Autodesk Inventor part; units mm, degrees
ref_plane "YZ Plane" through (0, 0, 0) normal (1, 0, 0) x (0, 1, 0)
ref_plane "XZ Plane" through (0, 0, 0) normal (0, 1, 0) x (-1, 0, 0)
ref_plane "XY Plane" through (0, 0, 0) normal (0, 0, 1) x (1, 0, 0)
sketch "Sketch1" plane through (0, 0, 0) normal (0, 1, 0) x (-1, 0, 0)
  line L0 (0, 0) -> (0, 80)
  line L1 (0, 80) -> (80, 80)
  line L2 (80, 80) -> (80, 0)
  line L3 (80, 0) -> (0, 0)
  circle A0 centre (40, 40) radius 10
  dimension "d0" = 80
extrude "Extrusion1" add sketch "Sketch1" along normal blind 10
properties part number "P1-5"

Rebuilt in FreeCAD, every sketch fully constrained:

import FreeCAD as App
import Part
import Sketcher
from FreeCAD import Vector
Q = App.Units.Quantity


def add_polygon(sketch, points):
    """Adds a closed chain of lines whose ends are joined by coincident constraints."""
    first, n = sketch.GeometryCount, len(points)
    for a, b in zip(points, points[1:] + points[:1]):
        sketch.addGeometry(Part.LineSegment(App.Vector(*a, 0), App.Vector(*b, 0)), False)
    for i in range(n):
        sketch.addConstraint(Sketcher.Constraint("Coincident", first + i, 2, first + (i + 1) % n, 1))

doc = App.newDocument("Part")
params = doc.addObject("Spreadsheet::Sheet", "Params")
for row, (alias, value) in enumerate([
    ("sketch1_width", "80 mm"),
    ("sketch1_diameter", "20 mm"),
    ("pad1_length", "10 mm"),
], start=1):
    params.set(f"A{row}", alias)
    params.set(f"B{row}", "=" + value)
    params.setAlias(f"B{row}", alias)

body = doc.addObject("PartDesign::Body", "Body")

# Sketch on XZ plane
sketch1 = body.newObject("Sketcher::SketchObject", "Sketch")
sketch1.AttachmentSupport = (doc.getObject("XZ_Plane"), [""])
sketch1.MapMode = "FlatFace"
add_polygon(sketch1, [(0, 80), (0, 0), (-80, 0), (-80, 80)])  # lines 0-3
sketch1.addGeometry(Part.Circle(Vector(-40, 40, 0), Vector(0, 0, 1), 10), False)  # 4
sketch1.addConstraint([
    Sketcher.Constraint("Vertical", 0),
    Sketcher.Constraint("Horizontal", 1),
    Sketcher.Constraint("Vertical", 2),
    Sketcher.Constraint("Horizontal", 3),
    Sketcher.Constraint("Coincident", 0, 2, -1, 1),
    Sketcher.Constraint("Equal", 3, 0),
    Sketcher.Constraint("DistanceX", 1, 2, 1, 1, Q("80 mm")),
    Sketcher.Constraint("Diameter", 4, Q("20 mm")),
    Sketcher.Constraint("DistanceX", 4, 3, -1, 1, Q("40 mm")),
    Sketcher.Constraint("DistanceY", -1, 1, 4, 3, Q("40 mm")),
])
sketch1.setExpression("Constraints[10]", "Params.sketch1_width")
sketch1.setExpression("Constraints[11]", "Params.sketch1_diameter")
pad1 = body.newObject("PartDesign::Pad", "Pad")
pad1.Profile = sketch1
pad1.setExpression("Length", "Params.pad1_length")
pad1.Reversed = True

doc.recompute()
